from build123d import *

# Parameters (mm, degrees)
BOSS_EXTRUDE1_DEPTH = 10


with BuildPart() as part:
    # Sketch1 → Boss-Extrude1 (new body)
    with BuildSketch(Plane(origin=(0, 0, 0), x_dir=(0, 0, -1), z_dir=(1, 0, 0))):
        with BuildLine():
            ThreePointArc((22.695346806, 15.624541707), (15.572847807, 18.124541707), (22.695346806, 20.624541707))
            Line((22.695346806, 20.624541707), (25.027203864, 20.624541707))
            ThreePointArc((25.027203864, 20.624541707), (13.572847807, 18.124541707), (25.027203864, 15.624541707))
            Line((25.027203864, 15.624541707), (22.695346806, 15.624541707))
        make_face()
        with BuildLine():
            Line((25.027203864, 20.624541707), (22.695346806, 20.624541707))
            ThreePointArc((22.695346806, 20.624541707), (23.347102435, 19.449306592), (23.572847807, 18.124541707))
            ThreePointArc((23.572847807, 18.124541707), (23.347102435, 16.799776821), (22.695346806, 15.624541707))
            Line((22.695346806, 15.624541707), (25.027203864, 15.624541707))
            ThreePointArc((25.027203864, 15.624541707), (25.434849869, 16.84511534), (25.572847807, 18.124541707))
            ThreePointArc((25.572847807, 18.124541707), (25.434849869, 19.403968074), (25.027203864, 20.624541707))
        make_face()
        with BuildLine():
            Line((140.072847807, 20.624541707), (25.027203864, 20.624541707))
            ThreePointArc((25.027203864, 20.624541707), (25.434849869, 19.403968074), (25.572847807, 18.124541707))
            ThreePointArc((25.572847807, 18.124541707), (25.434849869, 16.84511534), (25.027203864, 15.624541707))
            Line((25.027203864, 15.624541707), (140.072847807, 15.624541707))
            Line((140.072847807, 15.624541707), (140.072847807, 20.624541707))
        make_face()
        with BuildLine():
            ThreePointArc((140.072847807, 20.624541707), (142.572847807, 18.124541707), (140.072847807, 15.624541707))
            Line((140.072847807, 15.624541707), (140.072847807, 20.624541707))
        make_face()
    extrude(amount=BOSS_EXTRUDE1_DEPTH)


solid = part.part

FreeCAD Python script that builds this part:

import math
import FreeCAD as App
import Part
import Sketcher
from FreeCAD import Vector

doc = App.newDocument("Part")
body = doc.addObject("PartDesign::Body", "Body")

# Sketch on YZ plane
sketch1 = body.newObject("Sketcher::SketchObject", "Sketch")
sketch1.AttachmentSupport = (doc.getObject("YZ_Plane"), [""])
sketch1.MapMode = "FlatFace"
sketch1.addGeometry([
    Part.ArcOfCircle(Part.Circle(Vector(18.124542, -19.572848, 0), Vector(0, 0, 1), 6), math.radians(-65.375682), math.radians(245.375682)),  # 0
    Part.LineSegment(Vector(15.624542, -25.027204, 0), Vector(15.624542, -140.072848, 0)),  # 1
    Part.ArcOfCircle(Part.Circle(Vector(18.124542, -140.072848, 0), Vector(0, 0, 1), 2.5), math.radians(180), math.radians(360)),  # 2
    Part.LineSegment(Vector(20.624542, -140.072848, 0), Vector(20.624542, -25.027204, 0)),  # 3
    Part.ArcOfCircle(Part.Circle(Vector(18.124542, -19.572848, 0), Vector(0, 0, 1), 4), math.radians(-51.317813), math.radians(231.317813)),  # 4
    Part.ArcOfCircle(Part.Circle(Vector(18.124542, -19.572848, 0), Vector(0, 0, 1), 4), math.radians(-90), math.radians(-51.317813)),  # 5
    Part.ArcOfCircle(Part.Circle(Vector(18.124542, -19.572848, 0), Vector(0, 0, 1), 4), math.radians(-128.682187), math.radians(-90)),  # 6
], False)
sketch1.addConstraint([
    Sketcher.Constraint("Coincident", 0, 2, 1, 1),
    Sketcher.Constraint("Tangent", 1, 2, 2, 1),
    Sketcher.Constraint("Tangent", 2, 2, 3, 1),
    Sketcher.Constraint("Coincident", 3, 2, 0, 1),
    Sketcher.Constraint("Tangent", 4, 1, 5, 2),
    Sketcher.Constraint("Tangent", 5, 1, 6, 2),
    Sketcher.Constraint("Tangent", 6, 1, 4, 2),
    Sketcher.Constraint("Vertical", 1),
    Sketcher.Constraint("Vertical", 3),
    Sketcher.Constraint("Coincident", 4, 3, 0, 3),
    Sketcher.Constraint("Horizontal", 0, 2, 3, 2),
    Sketcher.Constraint("Horizontal", 4, 1, 6, 1),
    Sketcher.Constraint("Vertical", 3, 2, 4, 1),
    Sketcher.Constraint("Vertical", 6, 3, 5, 1),
    Sketcher.Constraint("Radius", 0, 6.0),
    Sketcher.Constraint("Radius", 4, 4.0),
    Sketcher.Constraint("Radius", 2, 2.5),
    Sketcher.Constraint("DistanceY", 2, 3, 0, 3, 120.5),
    Sketcher.Constraint("DistanceX", -1, 1, 0, 3, 18.124542),
    Sketcher.Constraint("DistanceY", 0, 3, -1, 1, 19.572848),
])
pad1 = body.newObject("PartDesign::Pad", "Pad")
pad1.Profile = sketch1
pad1.Length = 10

doc.recompute()
